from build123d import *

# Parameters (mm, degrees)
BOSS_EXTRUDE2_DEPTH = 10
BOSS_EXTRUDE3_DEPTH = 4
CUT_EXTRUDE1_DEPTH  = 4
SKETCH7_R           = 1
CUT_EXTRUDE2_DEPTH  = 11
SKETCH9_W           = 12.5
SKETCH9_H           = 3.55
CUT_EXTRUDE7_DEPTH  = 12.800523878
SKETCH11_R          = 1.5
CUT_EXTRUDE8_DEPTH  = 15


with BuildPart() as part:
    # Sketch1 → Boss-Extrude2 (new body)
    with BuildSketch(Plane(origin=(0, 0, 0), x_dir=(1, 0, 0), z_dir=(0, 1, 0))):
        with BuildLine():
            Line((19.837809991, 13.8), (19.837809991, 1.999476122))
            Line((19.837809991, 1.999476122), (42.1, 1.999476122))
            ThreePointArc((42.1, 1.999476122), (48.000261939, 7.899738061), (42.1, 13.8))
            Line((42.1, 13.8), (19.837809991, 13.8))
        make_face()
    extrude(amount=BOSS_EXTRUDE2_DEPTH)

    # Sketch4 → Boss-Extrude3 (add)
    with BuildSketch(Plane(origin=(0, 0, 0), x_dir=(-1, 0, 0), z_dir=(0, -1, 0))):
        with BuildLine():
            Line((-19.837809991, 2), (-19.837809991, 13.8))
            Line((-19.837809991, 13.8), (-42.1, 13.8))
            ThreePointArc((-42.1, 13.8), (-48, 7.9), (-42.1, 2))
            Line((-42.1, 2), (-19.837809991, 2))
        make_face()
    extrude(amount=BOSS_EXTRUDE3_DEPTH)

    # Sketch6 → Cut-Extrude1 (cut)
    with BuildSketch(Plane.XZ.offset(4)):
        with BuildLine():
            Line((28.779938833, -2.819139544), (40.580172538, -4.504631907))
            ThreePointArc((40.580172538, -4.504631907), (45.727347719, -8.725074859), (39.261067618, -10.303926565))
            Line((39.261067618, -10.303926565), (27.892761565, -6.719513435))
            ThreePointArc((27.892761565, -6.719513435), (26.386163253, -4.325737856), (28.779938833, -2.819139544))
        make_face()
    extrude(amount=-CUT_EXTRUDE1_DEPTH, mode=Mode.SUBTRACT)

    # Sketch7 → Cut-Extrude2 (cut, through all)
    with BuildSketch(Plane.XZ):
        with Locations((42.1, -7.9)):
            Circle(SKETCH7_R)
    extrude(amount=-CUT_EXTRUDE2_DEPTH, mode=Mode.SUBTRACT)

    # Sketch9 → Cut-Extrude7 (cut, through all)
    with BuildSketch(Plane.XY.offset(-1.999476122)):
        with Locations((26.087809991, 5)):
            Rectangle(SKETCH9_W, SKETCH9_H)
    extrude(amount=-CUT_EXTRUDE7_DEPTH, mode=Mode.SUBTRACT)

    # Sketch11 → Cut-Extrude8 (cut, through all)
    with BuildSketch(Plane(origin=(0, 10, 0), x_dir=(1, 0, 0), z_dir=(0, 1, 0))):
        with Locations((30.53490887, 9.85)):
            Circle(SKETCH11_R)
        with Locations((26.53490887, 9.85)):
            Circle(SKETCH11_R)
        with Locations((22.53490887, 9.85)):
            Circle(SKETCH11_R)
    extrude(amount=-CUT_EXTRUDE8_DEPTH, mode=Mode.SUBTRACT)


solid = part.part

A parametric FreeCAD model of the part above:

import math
import FreeCAD as App
import Part
import Sketcher
from FreeCAD import Vector
Q = App.Units.Quantity


def add_polygon(sketch, points):
    """Adds a closed chain of lines whose ends are joined by coincident constraints."""
    first, n = sketch.GeometryCount, len(points)
    for a, b in zip(points, points[1:] + points[:1]):
        sketch.addGeometry(Part.LineSegment(App.Vector(*a, 0), App.Vector(*b, 0)), False)
    for i in range(n):
        sketch.addConstraint(Sketcher.Constraint("Coincident", first + i, 2, first + (i + 1) % n, 1))

doc = App.newDocument("Part")
body = doc.addObject("PartDesign::Body", "Body")

# Sketch on XZ plane
sketch1 = body.newObject("Sketcher::SketchObject", "Sketch")
sketch1.AttachmentSupport = (doc.getObject("XZ_Plane"), [""])
sketch1.MapMode = "FlatFace"
sketch1.addGeometry(Part.LineSegment(Vector(20, -14, 0), Vector(20, -2, 0)), False)
sketch1.addGeometry(Part.LineSegment(Vector(20, -2, 0), Vector(42, -2, 0)), False)
sketch1.addGeometry(Part.ArcOfCircle(Part.Circle(Vector(42, -8, 0), Vector(0, 0, 1), 6), math.radians(-90), math.radians(90)), False)
sketch1.addGeometry(Part.LineSegment(Vector(42, -14, 0), Vector(20, -14, 0)), False)
sketch1.addConstraint(Sketcher.Constraint("Coincident", 0, 2, 1, 1))
sketch1.addConstraint(Sketcher.Constraint("Tangent", 1, 2, 2, 2))
sketch1.addConstraint(Sketcher.Constraint("Tangent", 2, 1, 3, 1))
sketch1.addConstraint(Sketcher.Constraint("Coincident", 3, 2, 0, 1))
sketch1.addConstraint(Sketcher.Constraint("Vertical", 0))
sketch1.addConstraint(Sketcher.Constraint("Horizontal", 1))
sketch1.addConstraint(Sketcher.Constraint("Horizontal", 3))
sketch1.addConstraint(Sketcher.Constraint("DistanceX", -1, 1, 2, 3, 42.1))
sketch1.addConstraint(Sketcher.Constraint("DistanceY", 2, 1, -1, 1, 13.8))
sketch1.addConstraint(Sketcher.Constraint("Radius", 2, 5.900262))
sketch1.addConstraint(Sketcher.Constraint("DistanceX", 1, 1, 1, 2, 22.26219))
pad1 = body.newObject("PartDesign::Pad", "Pad")
pad1.Profile = sketch1
pad1.Length = 10
pad1.Reversed = True

# Sketch on XZ plane
sketch2 = body.newObject("Sketcher::SketchObject", "Sketch001")
sketch2.AttachmentSupport = (doc.getObject("XZ_Plane"), [""])
sketch2.MapMode = "FlatFace"
sketch2.addGeometry(Part.LineSegment(Vector(20, -2, 0), Vector(20, -14, 0)), False)
sketch2.addGeometry(Part.LineSegment(Vector(20, -14, 0), Vector(42, -14, 0)), False)
sketch2.addGeometry(Part.ArcOfCircle(Part.Circle(Vector(42, -8, 0), Vector(0, 0, 1), 6), math.radians(-90), math.radians(90)), False)
sketch2.addGeometry(Part.LineSegment(Vector(42, -2, 0), Vector(20, -2, 0)), False)
sketch2.addConstraint(Sketcher.Constraint("Coincident", 0, 2, 1, 1))
sketch2.addConstraint(Sketcher.Constraint("Tangent", 1, 2, 2, 1))
sketch2.addConstraint(Sketcher.Constraint("Tangent", 2, 2, 3, 1))
sketch2.addConstraint(Sketcher.Constraint("Coincident", 3, 2, 0, 1))
sketch2.addConstraint(Sketcher.Constraint("Vertical", 0))
sketch2.addConstraint(Sketcher.Constraint("Horizontal", 1))
sketch2.addConstraint(Sketcher.Constraint("Horizontal", 3))
sketch2.addConstraint(Sketcher.Constraint("Radius", 2, 5.9))
sketch2.addConstraint(Sketcher.Constraint("DistanceY", 2, 2, -1, 1, 2.0))
sketch2.addConstraint(Sketcher.Constraint("DistanceX", -1, 1, 2, 3, 42.1))
sketch2.addConstraint(Sketcher.Constraint("DistanceX", 1, 1, 1, 2, 22.26219))
pad2 = body.newObject("PartDesign::Pad", "Pad001")
pad2.Profile = sketch2
pad2.Length = 4

# Sketch on XZ plane
sketch3 = body.newObject("Sketcher::SketchObject", "Sketch002")
sketch3.AttachmentSupport = (doc.getObject("XZ_Plane"), [""])
sketch3.MapMode = "FlatFace"
sketch3.AttachmentOffset = App.Placement(Vector(0, 0, 4), App.Rotation())
sketch3.addGeometry(Part.LineSegment(Vector(40.6, -4.5, 0), Vector(28.8, -2.8, 0)), False)
sketch3.addGeometry(Part.ArcOfCircle(Part.Circle(Vector(28.3, -4.8, 0), Vector(0, 0, 1), 2), math.radians(77), math.radians(257)), False)
sketch3.addGeometry(Part.LineSegment(Vector(27.9, -6.7, 0), Vector(39.3, -10.3, 0)), False)
sketch3.addGeometry(Part.ArcOfCircle(Part.Circle(Vector(42.1, -7.9, 0), Vector(0, 0, 1), 3.7), math.radians(-140), math.radians(114)), False)
sketch3.addConstraint(Sketcher.Constraint("Coincident", 0, 2, 1, 1))
sketch3.addConstraint(Sketcher.Constraint("Coincident", 1, 2, 2, 1))
sketch3.addConstraint(Sketcher.Constraint("Coincident", 2, 2, 3, 1))
sketch3.addConstraint(Sketcher.Constraint("Coincident", 3, 2, 0, 1))
sketch3.addConstraint(Sketcher.Constraint("Equal", 0, 2))
sketch3.addConstraint(Sketcher.Constraint("Radius", 1, 2.0))
sketch3.addConstraint(Sketcher.Constraint("Radius", 3, 3.72))
sketch3.addConstraint(Sketcher.Constraint("Angle", 2, Q("-17.5 deg")))
sketch3.addConstraint(Sketcher.Constraint("DistanceX", -1, 1, 3, 3, 42.1))
sketch3.addConstraint(Sketcher.Constraint("DistanceY", 3, 3, -1, 1, 7.9))
sketch3.addConstraint(Sketcher.Constraint("Distance", 0, 11.92))
sketch3.addConstraint(Sketcher.Constraint("DistanceY", 2, 2, 1, 3, 5.5346))
sketch3.addConstraint(Sketcher.Constraint("DistanceX", -1, 1, 1, 3, 28.33635))
sketch3.addConstraint(Sketcher.Constraint("DistanceX", -1, 1, 0, 2, 28.779939))
pocket1 = body.newObject("PartDesign::Pocket", "Pocket")
pocket1.Profile = sketch3
pocket1.Length = 4

# Sketch on XZ plane
sketch4 = body.newObject("Sketcher::SketchObject", "Sketch003")
sketch4.AttachmentSupport = (doc.getObject("XZ_Plane"), [""])
sketch4.MapMode = "FlatFace"
sketch4.addGeometry(Part.Circle(Vector(42.1, -7.9, 0), Vector(0, 0, 1), 1), False)
sketch4.addConstraint(Sketcher.Constraint("Diameter", 0, 2.0))
sketch4.addConstraint(Sketcher.Constraint("DistanceX", -1, 1, 0, 3, 42.1))
sketch4.addConstraint(Sketcher.Constraint("DistanceY", 0, 3, -1, 1, 7.9))
pocket2 = body.newObject("PartDesign::Pocket", "Pocket001")
pocket2.Profile = sketch4
pocket2.Type = "ThroughAll"

# Sketch on XY plane
sketch5 = body.newObject("Sketcher::SketchObject", "Sketch004")
sketch5.AttachmentSupport = (doc.getObject("XY_Plane"), [""])
sketch5.MapMode = "FlatFace"
sketch5.AttachmentOffset = App.Placement(Vector(0, 0, -1.999476), App.Rotation())
add_polygon(sketch5, [(19.8, 6.8), (19.8, 3.2), (32.3, 3.2), (32.3, 6.8)])  # lines 0-3
sketch5.addConstraint(Sketcher.Constraint("Vertical", 0))
sketch5.addConstraint(Sketcher.Constraint("Horizontal", 1))
sketch5.addConstraint(Sketcher.Constraint("Vertical", 2))
sketch5.addConstraint(Sketcher.Constraint("Horizontal", 3))
sketch5.addConstraint(Sketcher.Constraint("DistanceX", 1, 1, 1, 2, 12.5))
sketch5.addConstraint(Sketcher.Constraint("DistanceY", 0, 2, 0, 1, 3.55))
sketch5.addConstraint(Sketcher.Constraint("DistanceY", -1, 1, 0, 2, 3.225))
sketch5.addConstraint(Sketcher.Constraint("DistanceX", -1, 1, 0, 2, 19.83781))
pocket3 = body.newObject("PartDesign::Pocket", "Pocket002")
pocket3.Profile = sketch5
pocket3.Type = "ThroughAll"

# Sketch on XZ plane
sketch6 = body.newObject("Sketcher::SketchObject", "Sketch005")
sketch6.AttachmentSupport = (doc.getObject("XZ_Plane"), [""])
sketch6.MapMode = "FlatFace"
sketch6.AttachmentOffset = App.Placement(Vector(0, 0, -10), App.Rotation())
sketch6.addGeometry(Part.Circle(Vector(30.5, -9.8, 0), Vector(0, 0, 1), 1.5), False)
sketch6.addGeometry(Part.Circle(Vector(26.5, -9.8, 0), Vector(0, 0, 1), 1.5), False)
sketch6.addGeometry(Part.Circle(Vector(22.5, -9.8, 0), Vector(0, 0, 1), 1.5), False)
sketch6.addConstraint(Sketcher.Constraint("Equal", 0, 1))
sketch6.addConstraint(Sketcher.Constraint("Equal", 1, 2))
sketch6.addConstraint(Sketcher.Constraint("Horizontal", 0, 3, 1, 3))
sketch6.addConstraint(Sketcher.Constraint("Horizontal", 1, 3, 2, 3))
sketch6.addConstraint(Sketcher.Constraint("Diameter", 0, 3.0))
sketch6.addConstraint(Sketcher.Constraint("DistanceX", 1, 3, 0, 3, 4.0))
sketch6.addConstraint(Sketcher.Constraint("DistanceX", 2, 3, 1, 3, 4.0))
sketch6.addConstraint(Sketcher.Constraint("DistanceY", 0, 3, -1, 1, 9.85))
sketch6.addConstraint(Sketcher.Constraint("DistanceX", -1, 1, 0, 3, 30.534909))
pocket4 = body.newObject("PartDesign::Pocket", "Pocket003")
pocket4.Profile = sketch6
pocket4.Type = "ThroughAll"
pocket4.Reversed = True

doc.recompute()
